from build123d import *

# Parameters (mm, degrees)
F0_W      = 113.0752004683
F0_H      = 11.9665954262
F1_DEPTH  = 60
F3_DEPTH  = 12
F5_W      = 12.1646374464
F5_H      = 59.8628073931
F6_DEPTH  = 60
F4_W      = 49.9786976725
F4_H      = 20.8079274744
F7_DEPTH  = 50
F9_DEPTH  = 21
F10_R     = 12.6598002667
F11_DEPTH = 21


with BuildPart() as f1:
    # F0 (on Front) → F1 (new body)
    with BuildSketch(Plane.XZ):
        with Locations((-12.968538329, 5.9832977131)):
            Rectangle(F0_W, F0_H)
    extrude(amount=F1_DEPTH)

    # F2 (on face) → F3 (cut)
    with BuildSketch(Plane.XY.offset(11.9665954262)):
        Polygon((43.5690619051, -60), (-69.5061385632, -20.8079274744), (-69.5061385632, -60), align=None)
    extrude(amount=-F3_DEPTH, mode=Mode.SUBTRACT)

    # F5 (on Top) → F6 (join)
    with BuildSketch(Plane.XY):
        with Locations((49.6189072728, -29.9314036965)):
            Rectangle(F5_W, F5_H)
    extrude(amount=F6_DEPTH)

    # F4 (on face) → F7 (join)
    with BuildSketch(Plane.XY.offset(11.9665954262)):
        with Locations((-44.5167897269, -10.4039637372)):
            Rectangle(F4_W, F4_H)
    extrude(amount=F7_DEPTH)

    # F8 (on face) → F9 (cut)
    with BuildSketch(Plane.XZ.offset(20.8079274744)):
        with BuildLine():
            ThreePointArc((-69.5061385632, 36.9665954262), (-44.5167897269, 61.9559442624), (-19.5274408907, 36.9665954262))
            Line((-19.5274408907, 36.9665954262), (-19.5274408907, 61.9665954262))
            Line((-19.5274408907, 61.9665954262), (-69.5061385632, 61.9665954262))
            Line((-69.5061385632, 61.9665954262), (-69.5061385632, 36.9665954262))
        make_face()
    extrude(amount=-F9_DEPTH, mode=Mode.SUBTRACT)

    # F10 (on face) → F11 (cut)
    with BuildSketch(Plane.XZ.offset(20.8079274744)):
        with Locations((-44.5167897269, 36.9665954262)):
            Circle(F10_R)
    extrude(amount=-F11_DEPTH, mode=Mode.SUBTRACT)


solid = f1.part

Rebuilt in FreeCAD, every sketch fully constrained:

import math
import FreeCAD as App
import Part
import Sketcher
from FreeCAD import Vector
Q = App.Units.Quantity

doc = App.newDocument("Part")
body = doc.addObject("PartDesign::Body", "Body")

sketch1 = body.newObject("Sketcher::SketchObject", "Sketch")
sketch1.AttachmentSupport = (doc.getObject("XZ_Plane"), [""])
sketch1.MapMode = "FlatFace"
sketch1.addGeometry(Part.LineSegment(Vector(-69.506139, 11.966595, 0), Vector(-69.506139, 0, 0)), False)
sketch1.addGeometry(Part.LineSegment(Vector(-69.506139, 0, 0), Vector(43.569062, 0, 0)), False)
sketch1.addGeometry(Part.LineSegment(Vector(43.569062, 0, 0), Vector(43.569062, 11.966595, 0)), False)
sketch1.addGeometry(Part.LineSegment(Vector(43.569062, 11.966595, 0), Vector(-69.506139, 11.966595, 0)), False)
sketch1.addConstraint(Sketcher.Constraint("Coincident", 0, 2, 1, 1))
sketch1.addConstraint(Sketcher.Constraint("Coincident", 1, 2, 2, 1))
sketch1.addConstraint(Sketcher.Constraint("Coincident", 2, 2, 3, 1))
sketch1.addConstraint(Sketcher.Constraint("Coincident", 3, 2, 0, 1))
sketch1.addConstraint(Sketcher.Constraint("Vertical", 0))
sketch1.addConstraint(Sketcher.Constraint("Horizontal", 1))
sketch1.addConstraint(Sketcher.Constraint("Vertical", 2))
sketch1.addConstraint(Sketcher.Constraint("Horizontal", 3))
sketch1.addConstraint(Sketcher.Constraint("PointOnObject", 0, 2, -1))
sketch1.addConstraint(Sketcher.Constraint("DistanceX", 1, 1, 1, 2, Q("113.0752 mm")))
sketch1.addConstraint(Sketcher.Constraint("DistanceY", 0, 2, 0, 1, Q("11.966595 mm")))
sketch1.addConstraint(Sketcher.Constraint("DistanceX", 0, 2, -1, 1, Q("69.506139 mm")))
pad1 = body.newObject("PartDesign::Pad", "Pad")
pad1.Profile = sketch1
pad1.Length = 60

sketch2 = body.newObject("Sketcher::SketchObject", "Sketch001")
sketch2.AttachmentSupport = (doc.getObject("XY_Plane"), [""])
sketch2.MapMode = "FlatFace"
sketch2.AttachmentOffset = App.Placement(Vector(0, 0, 11.966595), App.Rotation())
sketch2.addGeometry(Part.LineSegment(Vector(43.569062, -60, 0), Vector(-69.506139, -20.807927, 0)), False)
sketch2.addGeometry(Part.LineSegment(Vector(-69.506139, -20.807927, 0), Vector(-69.506139, -60, 0)), False)
sketch2.addGeometry(Part.LineSegment(Vector(-69.506139, -60, 0), Vector(43.569062, -60, 0)), False)
sketch2.addConstraint(Sketcher.Constraint("Coincident", 0, 2, 1, 1))
sketch2.addConstraint(Sketcher.Constraint("Coincident", 1, 2, 2, 1))
sketch2.addConstraint(Sketcher.Constraint("Coincident", 2, 2, 0, 1))
sketch2.addConstraint(Sketcher.Constraint("Vertical", 1))
sketch2.addConstraint(Sketcher.Constraint("Horizontal", 2))
sketch2.addConstraint(Sketcher.Constraint("DistanceY", 1, 2, -1, 1, Q("60 mm")))
sketch2.addConstraint(Sketcher.Constraint("DistanceX", 2, 1, 2, 2, Q("113.0752 mm")))
sketch2.addConstraint(Sketcher.Constraint("Distance", 0, Q("119.67464 mm")))
sketch2.addConstraint(Sketcher.Constraint("DistanceX", 0, 2, -1, 1, Q("69.506139 mm")))
pocket1 = body.newObject("PartDesign::Pocket", "Pocket")
pocket1.Profile = sketch2
pocket1.Length = 12

sketch3 = body.newObject("Sketcher::SketchObject", "Sketch002")
sketch3.AttachmentSupport = (doc.getObject("XY_Plane"), [""])
sketch3.MapMode = "FlatFace"
sketch3.addGeometry(Part.LineSegment(Vector(43.536589, 0, 0), Vector(43.536589, -59.862807, 0)), False)
sketch3.addGeometry(Part.LineSegment(Vector(43.536589, -59.862807, 0), Vector(55.701226, -59.862807, 0)), False)
sketch3.addGeometry(Part.LineSegment(Vector(55.701226, -59.862807, 0), Vector(55.701226, 0, 0)), False)
sketch3.addGeometry(Part.LineSegment(Vector(55.701226, 0, 0), Vector(43.536589, 0, 0)), False)
sketch3.addConstraint(Sketcher.Constraint("Coincident", 0, 2, 1, 1))
sketch3.addConstraint(Sketcher.Constraint("Coincident", 1, 2, 2, 1))
sketch3.addConstraint(Sketcher.Constraint("Coincident", 2, 2, 3, 1))
sketch3.addConstraint(Sketcher.Constraint("Coincident", 3, 2, 0, 1))
sketch3.addConstraint(Sketcher.Constraint("Vertical", 0))
sketch3.addConstraint(Sketcher.Constraint("Horizontal", 1))
sketch3.addConstraint(Sketcher.Constraint("Vertical", 2))
sketch3.addConstraint(Sketcher.Constraint("Horizontal", 3))
sketch3.addConstraint(Sketcher.Constraint("PointOnObject", 2, 2, -1))
sketch3.addConstraint(Sketcher.Constraint("DistanceX", 1, 1, 1, 2, Q("12.164637 mm")))
sketch3.addConstraint(Sketcher.Constraint("DistanceY", 0, 2, 0, 1, Q("59.862807 mm")))
sketch3.addConstraint(Sketcher.Constraint("DistanceX", -1, 1, 0, 2, Q("43.536589 mm")))
pad2 = body.newObject("PartDesign::Pad", "Pad001")
pad2.Profile = sketch3
pad2.Length = 60

sketch4 = body.newObject("Sketcher::SketchObject", "Sketch003")
sketch4.AttachmentSupport = (doc.getObject("XY_Plane"), [""])
sketch4.MapMode = "FlatFace"
sketch4.AttachmentOffset = App.Placement(Vector(0, 0, 11.966595), App.Rotation())
sketch4.addGeometry(Part.LineSegment(Vector(-69.506139, 0, 0), Vector(-69.506139, -20.807927, 0)), False)
sketch4.addGeometry(Part.LineSegment(Vector(-69.506139, -20.807927, 0), Vector(-19.527441, -20.807927, 0)), False)
sketch4.addGeometry(Part.LineSegment(Vector(-19.527441, -20.807927, 0), Vector(-19.527441, 0, 0)), False)
sketch4.addGeometry(Part.LineSegment(Vector(-19.527441, 0, 0), Vector(-69.506139, 0, 0)), False)
sketch4.addConstraint(Sketcher.Constraint("Coincident", 0, 2, 1, 1))
sketch4.addConstraint(Sketcher.Constraint("Coincident", 1, 2, 2, 1))
sketch4.addConstraint(Sketcher.Constraint("Coincident", 2, 2, 3, 1))
sketch4.addConstraint(Sketcher.Constraint("Coincident", 3, 2, 0, 1))
sketch4.addConstraint(Sketcher.Constraint("Vertical", 0))
sketch4.addConstraint(Sketcher.Constraint("Horizontal", 1))
sketch4.addConstraint(Sketcher.Constraint("Vertical", 2))
sketch4.addConstraint(Sketcher.Constraint("Horizontal", 3))
sketch4.addConstraint(Sketcher.Constraint("PointOnObject", 2, 2, -1))
sketch4.addConstraint(Sketcher.Constraint("DistanceX", 1, 1, 1, 2, Q("49.978698 mm")))
sketch4.addConstraint(Sketcher.Constraint("DistanceY", 0, 2, 0, 1, Q("20.807927 mm")))
sketch4.addConstraint(Sketcher.Constraint("DistanceX", 0, 2, -1, 1, Q("69.506139 mm")))
pad3 = body.newObject("PartDesign::Pad", "Pad002")
pad3.Profile = sketch4
pad3.Length = 50

sketch5 = body.newObject("Sketcher::SketchObject", "Sketch004")
sketch5.AttachmentSupport = (doc.getObject("XZ_Plane"), [""])
sketch5.MapMode = "FlatFace"
sketch5.AttachmentOffset = App.Placement(Vector(0, 0, 20.807927), App.Rotation())
sketch5.addGeometry(Part.ArcOfCircle(Part.Circle(Vector(-44.51679, 36.966595, 0), Vector(0, 0, 1), 24.989349), math.radians(0), math.radians(180)), False)
sketch5.addGeometry(Part.LineSegment(Vector(-19.527441, 36.966595, 0), Vector(-19.527441, 61.966595, 0)), False)
sketch5.addGeometry(Part.LineSegment(Vector(-19.527441, 61.966595, 0), Vector(-69.506139, 61.966595, 0)), False)
sketch5.addGeometry(Part.LineSegment(Vector(-69.506139, 61.966595, 0), Vector(-69.506139, 36.966595, 0)), False)
sketch5.addConstraint(Sketcher.Constraint("Tangent", 0, 1, 1, 1))
sketch5.addConstraint(Sketcher.Constraint("Coincident", 1, 2, 2, 1))
sketch5.addConstraint(Sketcher.Constraint("Coincident", 2, 2, 3, 1))
sketch5.addConstraint(Sketcher.Constraint("Tangent", 3, 2, 0, 2))
sketch5.addConstraint(Sketcher.Constraint("Vertical", 1))
sketch5.addConstraint(Sketcher.Constraint("Horizontal", 2))
sketch5.addConstraint(Sketcher.Constraint("Vertical", 3))
sketch5.addConstraint(Sketcher.Constraint("DistanceY", 1, 1, 1, 2, Q("25 mm")))
sketch5.addConstraint(Sketcher.Constraint("Radius", 0, Q("24.989349 mm")))
sketch5.addConstraint(Sketcher.Constraint("DistanceX", 0, 3, -1, 1, Q("44.51679 mm")))
sketch5.addConstraint(Sketcher.Constraint("DistanceY", -1, 1, 0, 3, Q("36.966595 mm")))
pocket2 = body.newObject("PartDesign::Pocket", "Pocket001")
pocket2.Profile = sketch5
pocket2.Length = 21

sketch6 = body.newObject("Sketcher::SketchObject", "Sketch005")
sketch6.AttachmentSupport = (doc.getObject("XZ_Plane"), [""])
sketch6.MapMode = "FlatFace"
sketch6.AttachmentOffset = App.Placement(Vector(0, 0, 20.807927), App.Rotation())
sketch6.addGeometry(Part.Circle(Vector(-44.51679, 36.966595, 0), Vector(0, 0, 1), 12.6598), False)
sketch6.addConstraint(Sketcher.Constraint("Diameter", 0, Q("25.319601 mm")))
sketch6.addConstraint(Sketcher.Constraint("DistanceX", 0, 3, -1, 1, Q("44.51679 mm")))
sketch6.addConstraint(Sketcher.Constraint("DistanceY", -1, 1, 0, 3, Q("36.966595 mm")))
pocket3 = body.newObject("PartDesign::Pocket", "Pocket002")
pocket3.Profile = sketch6
pocket3.Length = 21

doc.recompute()
